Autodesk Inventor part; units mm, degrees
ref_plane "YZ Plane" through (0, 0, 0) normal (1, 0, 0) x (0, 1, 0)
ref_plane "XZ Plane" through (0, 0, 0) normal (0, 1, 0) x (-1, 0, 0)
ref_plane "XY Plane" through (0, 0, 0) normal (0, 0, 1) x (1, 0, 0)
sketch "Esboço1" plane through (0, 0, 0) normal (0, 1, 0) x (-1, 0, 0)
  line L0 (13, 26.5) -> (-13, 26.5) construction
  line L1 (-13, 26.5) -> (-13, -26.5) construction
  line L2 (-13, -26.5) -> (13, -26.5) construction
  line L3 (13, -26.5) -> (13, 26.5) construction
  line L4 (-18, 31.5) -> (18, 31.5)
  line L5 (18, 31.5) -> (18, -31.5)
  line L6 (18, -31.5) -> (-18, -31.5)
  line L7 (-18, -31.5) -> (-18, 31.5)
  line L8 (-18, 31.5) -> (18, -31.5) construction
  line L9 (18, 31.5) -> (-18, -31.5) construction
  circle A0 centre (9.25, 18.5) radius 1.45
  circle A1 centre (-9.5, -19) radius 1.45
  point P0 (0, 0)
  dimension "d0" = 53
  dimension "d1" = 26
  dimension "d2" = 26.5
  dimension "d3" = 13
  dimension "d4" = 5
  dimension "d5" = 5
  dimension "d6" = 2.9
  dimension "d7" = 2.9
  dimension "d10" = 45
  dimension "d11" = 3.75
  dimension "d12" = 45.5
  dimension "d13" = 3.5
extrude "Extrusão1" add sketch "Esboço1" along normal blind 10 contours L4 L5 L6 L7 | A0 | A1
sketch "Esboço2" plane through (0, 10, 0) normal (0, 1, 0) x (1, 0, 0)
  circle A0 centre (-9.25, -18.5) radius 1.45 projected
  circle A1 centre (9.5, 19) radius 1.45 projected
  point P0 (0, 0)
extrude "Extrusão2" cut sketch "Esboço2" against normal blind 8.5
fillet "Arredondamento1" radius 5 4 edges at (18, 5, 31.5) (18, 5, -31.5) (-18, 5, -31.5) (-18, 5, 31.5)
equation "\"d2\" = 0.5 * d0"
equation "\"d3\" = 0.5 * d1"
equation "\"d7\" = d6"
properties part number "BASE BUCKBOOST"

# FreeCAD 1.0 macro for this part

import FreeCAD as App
import Part
import Sketcher

V = App.Vector


def edges_at(feature, points):
    """Names of the edges that pass closest to the given points."""
    edges = feature.Shape.Edges
    near = lambda p: min(range(len(edges)), key=lambda i: edges[i].distToShape(Part.Vertex(*p))[0])
    return sorted({f"Edge{near(p) + 1}" for p in points})

doc = App.newDocument("Part")
body = doc.addObject("PartDesign::Body", "Body")

sketch1 = doc.addObject("Sketcher::SketchObject", "Sketch")
body.addObject(sketch1)
sketch1.AttachmentSupport = (doc.XZ_Plane, [""])
sketch1.MapMode = "FlatFace"
sketch1.addGeometry([
    Part.LineSegment(V(-18, 32, 0), V(18, 32, 0)),
    Part.LineSegment(V(18, 32, 0), V(18, -32, 0)),
    Part.LineSegment(V(18, -32, 0), V(-18, -32, 0)),
    Part.LineSegment(V(-18, -32, 0), V(-18, 32, 0)),
], False)
sketch1.addConstraint([
    Sketcher.Constraint("Coincident", 0, 2, 1, 1),
    Sketcher.Constraint("Coincident", 1, 2, 2, 1),
    Sketcher.Constraint("Coincident", 2, 2, 3, 1),
    Sketcher.Constraint("Coincident", 3, 2, 0, 1),
    Sketcher.Constraint("Horizontal", 0),
    Sketcher.Constraint("Vertical", 1),
    Sketcher.Constraint("Horizontal", 2),
    Sketcher.Constraint("Vertical", 3),
    Sketcher.Constraint("Symmetric", 0, 2, 2, 2, -1, 1),
    Sketcher.Constraint("DistanceX", 0, 1, 0, 2, 36.0),
    Sketcher.Constraint("DistanceY", 1, 2, 1, 1, 63.0),
])
pad1 = doc.addObject("PartDesign::Pad", "Pad")
body.addObject(pad1)
pad1.Profile = sketch1
pad1.Length = 10
pad1.Reversed = True

sketch2 = doc.addObject("Sketcher::SketchObject", "Sketch001")
body.addObject(sketch2)
sketch2.AttachmentSupport = (doc.XZ_Plane, [""])
sketch2.MapMode = "FlatFace"
sketch2.AttachmentOffset = App.Placement(V(0, 0, -10), App.Rotation())
sketch2.addGeometry([
    Part.Circle(V(-9.2, 18.5, 0), V(0, 0, 1), 1.4),
    Part.Circle(V(9.5, -19, 0), V(0, 0, 1), 1.4),
], False)
sketch2.addConstraint([
    Sketcher.Constraint("Equal", 0, 1),
    Sketcher.Constraint("Diameter", 0, 2.9),
    Sketcher.Constraint("DistanceY", 1, 3, -1, 1, 19.0),
    Sketcher.Constraint("DistanceY", -1, 1, 0, 3, 18.5),
    Sketcher.Constraint("DistanceX", -1, 1, 1, 3, 9.5),
    Sketcher.Constraint("DistanceX", 0, 3, -1, 1, 9.25),
])
pocket1 = doc.addObject("PartDesign::Pocket", "Pocket")
body.addObject(pocket1)
pocket1.Profile = sketch2
pocket1.Length = 8.5
pocket1.Reversed = True
doc.recompute()

fillet = doc.addObject("PartDesign::Fillet", "Fillet")
body.addObject(fillet)
fillet.Base = (pocket1, edges_at(pocket1, [
    (18, 5, 31.5),
    (18, 5, -31.5),
    (-18, 5, -31.5),
    (-18, 5, 31.5),
]))
fillet.Radius = 5

doc.recompute()
